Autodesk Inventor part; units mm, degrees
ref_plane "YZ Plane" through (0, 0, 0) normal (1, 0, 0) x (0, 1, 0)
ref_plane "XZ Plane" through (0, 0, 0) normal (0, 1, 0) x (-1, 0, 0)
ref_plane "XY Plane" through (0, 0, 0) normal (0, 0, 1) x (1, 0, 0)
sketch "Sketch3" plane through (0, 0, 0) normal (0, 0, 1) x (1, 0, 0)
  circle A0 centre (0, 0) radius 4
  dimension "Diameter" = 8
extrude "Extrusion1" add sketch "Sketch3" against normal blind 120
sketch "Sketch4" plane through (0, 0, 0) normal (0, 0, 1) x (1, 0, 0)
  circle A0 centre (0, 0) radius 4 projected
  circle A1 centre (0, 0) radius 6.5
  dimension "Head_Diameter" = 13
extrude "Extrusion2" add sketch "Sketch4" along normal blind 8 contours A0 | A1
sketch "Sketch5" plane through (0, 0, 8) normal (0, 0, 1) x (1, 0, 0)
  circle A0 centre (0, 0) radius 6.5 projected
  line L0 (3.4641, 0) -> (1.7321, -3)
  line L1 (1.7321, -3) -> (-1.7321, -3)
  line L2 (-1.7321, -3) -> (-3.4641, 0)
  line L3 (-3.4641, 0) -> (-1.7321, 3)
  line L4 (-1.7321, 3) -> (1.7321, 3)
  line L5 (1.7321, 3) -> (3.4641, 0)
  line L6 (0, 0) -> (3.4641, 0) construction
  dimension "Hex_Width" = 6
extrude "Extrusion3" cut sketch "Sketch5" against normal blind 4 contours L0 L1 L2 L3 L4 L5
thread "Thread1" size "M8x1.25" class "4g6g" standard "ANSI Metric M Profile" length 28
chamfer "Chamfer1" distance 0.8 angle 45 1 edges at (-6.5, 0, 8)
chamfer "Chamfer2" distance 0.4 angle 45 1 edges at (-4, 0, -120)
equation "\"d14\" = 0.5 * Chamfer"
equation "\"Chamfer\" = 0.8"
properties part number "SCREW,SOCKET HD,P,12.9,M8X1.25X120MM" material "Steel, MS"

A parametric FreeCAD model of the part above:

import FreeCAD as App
import Part
import Sketcher

V = App.Vector
Q = App.Units.Quantity


def edges_at(feature, points):
    """Names of the edges that pass closest to the given points."""
    edges = feature.Shape.Edges
    near = lambda p: min(range(len(edges)), key=lambda i: edges[i].distToShape(Part.Vertex(*p))[0])
    return sorted({f"Edge{near(p) + 1}" for p in points})


def add_polygon(sketch, points):
    """Adds a closed chain of lines whose ends are joined by coincident constraints."""
    first, n = sketch.GeometryCount, len(points)
    for a, b in zip(points, points[1:] + points[:1]):
        sketch.addGeometry(Part.LineSegment(App.Vector(*a, 0), App.Vector(*b, 0)), False)
    for i in range(n):
        sketch.addConstraint(Sketcher.Constraint("Coincident", first + i, 2, first + (i + 1) % n, 1))

doc = App.newDocument("Part")
body = doc.addObject("PartDesign::Body", "Body")

# Sketch on XY plane
sketch1 = body.newObject("Sketcher::SketchObject", "Sketch")
sketch1.AttachmentSupport = (doc.getObject("XY_Plane"), [""])
sketch1.MapMode = "FlatFace"
sketch1.addGeometry(Part.Circle(V(0, 0, 0), V(0, 0, 1), 4), False)
sketch1.addConstraint([
    Sketcher.Constraint("Coincident", 0, 3, -1, 1),
    Sketcher.Constraint("Diameter", 0, 8.0),
])
pad1 = body.newObject("PartDesign::Pad", "Pad")
pad1.Profile = sketch1
pad1.Length = 120
pad1.Reversed = True

# Sketch on XY plane
sketch2 = body.newObject("Sketcher::SketchObject", "Sketch001")
sketch2.AttachmentSupport = (doc.getObject("XY_Plane"), [""])
sketch2.MapMode = "FlatFace"
sketch2.addGeometry(Part.Circle(V(0, 0, 0), V(0, 0, 1), 6.5), False)
sketch2.addConstraint([
    Sketcher.Constraint("Coincident", 0, 3, -1, 1),
    Sketcher.Constraint("Diameter", 0, 13.0),
])
pad2 = body.newObject("PartDesign::Pad", "Pad001")
pad2.Profile = sketch2
pad2.Length = 8

# Sketch on XY plane
sketch3 = body.newObject("Sketcher::SketchObject", "Sketch002")
sketch3.AttachmentSupport = (doc.getObject("XY_Plane"), [""])
sketch3.MapMode = "FlatFace"
sketch3.AttachmentOffset = App.Placement(V(0, 0, 8), App.Rotation())
add_polygon(sketch3, [(1.7321, -3), (3.4641, 0), (1.7321, 3), (-1.7321, 3), (-3.4641, 0), (-1.7321, -3)])  # lines 0-5
sketch3.addConstraint([
    Sketcher.Constraint("Horizontal", 2),
    Sketcher.Constraint("Horizontal", 5),
    Sketcher.Constraint("Symmetric", 0, 2, 3, 2, -1, 1),
    Sketcher.Constraint("Symmetric", 1, 2, 4, 2, -1, 1),
    Sketcher.Constraint("PointOnObject", 0, 2, -1),
    Sketcher.Constraint("Parallel", 0, 3),
    Sketcher.Constraint("Vertical", 2, 2, 4, 2),
    Sketcher.Constraint("DistanceY", 4, 2, 2, 2, 6.0),
    Sketcher.Constraint("Angle", 0, Q("60.0007 deg")),
    Sketcher.Constraint("DistanceX", 2, 2, 2, 1, 3.4642),
])
pocket1 = body.newObject("PartDesign::Pocket", "Pocket")
pocket1.Profile = sketch3
pocket1.Length = 4
doc.recompute()

chamfer = body.newObject("PartDesign::Chamfer", "Chamfer")
chamfer.Base = (pocket1, edges_at(pocket1, [(-6.5, 0, 8)]))
chamfer.Size = 0.8
doc.recompute()

chamfer2 = body.newObject("PartDesign::Chamfer", "Chamfer001")
chamfer2.Base = (chamfer, edges_at(chamfer, [(-4, 0, -120)]))
chamfer2.Size = 0.4

doc.recompute()
